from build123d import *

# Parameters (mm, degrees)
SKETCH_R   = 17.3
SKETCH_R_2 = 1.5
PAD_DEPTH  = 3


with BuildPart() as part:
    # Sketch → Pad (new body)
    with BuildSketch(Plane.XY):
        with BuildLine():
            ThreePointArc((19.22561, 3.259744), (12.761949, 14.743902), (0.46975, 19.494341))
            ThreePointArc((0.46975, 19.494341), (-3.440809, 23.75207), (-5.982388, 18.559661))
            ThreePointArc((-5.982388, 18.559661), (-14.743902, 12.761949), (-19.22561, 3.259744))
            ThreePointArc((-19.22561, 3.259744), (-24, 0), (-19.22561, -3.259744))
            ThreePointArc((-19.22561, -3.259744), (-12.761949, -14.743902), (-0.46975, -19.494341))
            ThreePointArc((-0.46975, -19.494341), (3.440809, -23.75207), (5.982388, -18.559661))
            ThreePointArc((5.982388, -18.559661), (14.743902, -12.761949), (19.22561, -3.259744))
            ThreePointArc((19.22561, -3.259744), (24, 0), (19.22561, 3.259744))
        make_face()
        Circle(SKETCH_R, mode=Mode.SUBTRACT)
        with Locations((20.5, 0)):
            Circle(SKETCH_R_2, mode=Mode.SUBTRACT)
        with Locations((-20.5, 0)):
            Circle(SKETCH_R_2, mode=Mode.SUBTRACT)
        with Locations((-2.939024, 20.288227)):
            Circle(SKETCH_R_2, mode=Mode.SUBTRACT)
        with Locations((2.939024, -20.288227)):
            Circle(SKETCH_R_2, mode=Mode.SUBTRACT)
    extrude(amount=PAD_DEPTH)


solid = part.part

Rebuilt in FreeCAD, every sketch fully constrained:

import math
import FreeCAD as App
import Part
import Sketcher
from FreeCAD import Vector

doc = App.newDocument("Part")
body = doc.addObject("PartDesign::Body", "Body")

sketch1 = body.newObject("Sketcher::SketchObject", "Sketch")
sketch1.AttachmentSupport = (doc.getObject("XY_Plane"), [""])
sketch1.MapMode = "FlatFace"
sketch1.addGeometry([
    Part.ArcOfCircle(Part.Circle(Vector(0, 0, 0), Vector(0, 0, 1), 19.5), math.radians(10), math.radians(89)),
    Part.ArcOfCircle(Part.Circle(Vector(-2.9, 20.3, 0), Vector(0, 0, 1), 3.5), math.radians(-13), math.radians(210)),
    Part.ArcOfCircle(Part.Circle(Vector(0, 0, 0), Vector(0, 0, 1), 19.5), math.radians(108), math.radians(170)),
    Part.ArcOfCircle(Part.Circle(Vector(-20.5, 0, 0), Vector(0, 0, 1), 3.5), math.radians(69), math.radians(291)),
    Part.ArcOfCircle(Part.Circle(Vector(0, 0, 0), Vector(0, 0, 1), 19.5), math.radians(-170), math.radians(-91)),
    Part.ArcOfCircle(Part.Circle(Vector(2.9, -20.3, 0), Vector(0, 0, 1), 3.5), math.radians(167), math.radians(390)),
    Part.ArcOfCircle(Part.Circle(Vector(0, 0, 0), Vector(0, 0, 1), 19.5), math.radians(-72), math.radians(-10)),
    Part.ArcOfCircle(Part.Circle(Vector(20.5, 0, 0), Vector(0, 0, 1), 3.5), math.radians(-111), math.radians(111)),
    Part.Circle(Vector(2.9, -20.3, 0), Vector(0, 0, 1), 1.5),
    Part.Circle(Vector(-20.5, 0, 0), Vector(0, 0, 1), 1.5),
    Part.Circle(Vector(-2.9, 20.3, 0), Vector(0, 0, 1), 1.5),
    Part.Circle(Vector(0, 0, 0), Vector(0, 0, 1), 17.3),
    Part.Circle(Vector(20.5, 0, 0), Vector(0, 0, 1), 1.5),
], False)
sketch1.addConstraint([
    Sketcher.Constraint("Coincident", 0, 2, 1, 1),
    Sketcher.Constraint("Coincident", 1, 2, 2, 1),
    Sketcher.Constraint("Coincident", 2, 2, 3, 1),
    Sketcher.Constraint("Coincident", 3, 2, 4, 1),
    Sketcher.Constraint("Coincident", 4, 2, 5, 1),
    Sketcher.Constraint("Coincident", 5, 2, 6, 1),
    Sketcher.Constraint("Coincident", 6, 2, 7, 1),
    Sketcher.Constraint("Coincident", 7, 2, 0, 1),
    Sketcher.Constraint("Coincident", 0, 3, -1, 1),
    Sketcher.Constraint("Coincident", 2, 3, -1, 1),
    Sketcher.Constraint("Coincident", 4, 3, -1, 1),
    Sketcher.Constraint("Coincident", 6, 3, -1, 1),
    Sketcher.Constraint("Coincident", 11, 3, -1, 1),
    Sketcher.Constraint("Coincident", 8, 3, 5, 3),
    Sketcher.Constraint("Coincident", 9, 3, 3, 3),
    Sketcher.Constraint("Coincident", 10, 3, 1, 3),
    Sketcher.Constraint("Coincident", 12, 3, 7, 3),
    Sketcher.Constraint("Equal", 0, 2),
    Sketcher.Constraint("Equal", 1, 3),
    Sketcher.Constraint("Equal", 2, 4),
    Sketcher.Constraint("Equal", 3, 5),
    Sketcher.Constraint("Equal", 4, 6),
    Sketcher.Constraint("Equal", 5, 7),
    Sketcher.Constraint("Equal", 8, 9),
    Sketcher.Constraint("Equal", 9, 10),
    Sketcher.Constraint("Equal", 10, 12),
    Sketcher.Constraint("Symmetric", 1, 3, 5, 3, -1, 1),
    Sketcher.Constraint("Symmetric", 3, 3, 7, 3, -1, 1),
    Sketcher.Constraint("PointOnObject", 3, 3, -1),
    Sketcher.Constraint("Diameter", 8, 3.0),
    Sketcher.Constraint("Diameter", 11, 34.6),
    Sketcher.Constraint("Radius", 0, 19.500001),
    Sketcher.Constraint("Radius", 1, 3.5),
    Sketcher.Constraint("DistanceX", 3, 3, -1, 1, 20.5),
    Sketcher.Constraint("DistanceX", -1, 1, 0, 2, 0.46975),
    Sketcher.Constraint("DistanceX", 1, 2, -1, 1, 5.982388),
])
pad1 = body.newObject("PartDesign::Pad", "Pad")
pad1.Profile = sketch1
pad1.Length = 3

doc.recompute()
